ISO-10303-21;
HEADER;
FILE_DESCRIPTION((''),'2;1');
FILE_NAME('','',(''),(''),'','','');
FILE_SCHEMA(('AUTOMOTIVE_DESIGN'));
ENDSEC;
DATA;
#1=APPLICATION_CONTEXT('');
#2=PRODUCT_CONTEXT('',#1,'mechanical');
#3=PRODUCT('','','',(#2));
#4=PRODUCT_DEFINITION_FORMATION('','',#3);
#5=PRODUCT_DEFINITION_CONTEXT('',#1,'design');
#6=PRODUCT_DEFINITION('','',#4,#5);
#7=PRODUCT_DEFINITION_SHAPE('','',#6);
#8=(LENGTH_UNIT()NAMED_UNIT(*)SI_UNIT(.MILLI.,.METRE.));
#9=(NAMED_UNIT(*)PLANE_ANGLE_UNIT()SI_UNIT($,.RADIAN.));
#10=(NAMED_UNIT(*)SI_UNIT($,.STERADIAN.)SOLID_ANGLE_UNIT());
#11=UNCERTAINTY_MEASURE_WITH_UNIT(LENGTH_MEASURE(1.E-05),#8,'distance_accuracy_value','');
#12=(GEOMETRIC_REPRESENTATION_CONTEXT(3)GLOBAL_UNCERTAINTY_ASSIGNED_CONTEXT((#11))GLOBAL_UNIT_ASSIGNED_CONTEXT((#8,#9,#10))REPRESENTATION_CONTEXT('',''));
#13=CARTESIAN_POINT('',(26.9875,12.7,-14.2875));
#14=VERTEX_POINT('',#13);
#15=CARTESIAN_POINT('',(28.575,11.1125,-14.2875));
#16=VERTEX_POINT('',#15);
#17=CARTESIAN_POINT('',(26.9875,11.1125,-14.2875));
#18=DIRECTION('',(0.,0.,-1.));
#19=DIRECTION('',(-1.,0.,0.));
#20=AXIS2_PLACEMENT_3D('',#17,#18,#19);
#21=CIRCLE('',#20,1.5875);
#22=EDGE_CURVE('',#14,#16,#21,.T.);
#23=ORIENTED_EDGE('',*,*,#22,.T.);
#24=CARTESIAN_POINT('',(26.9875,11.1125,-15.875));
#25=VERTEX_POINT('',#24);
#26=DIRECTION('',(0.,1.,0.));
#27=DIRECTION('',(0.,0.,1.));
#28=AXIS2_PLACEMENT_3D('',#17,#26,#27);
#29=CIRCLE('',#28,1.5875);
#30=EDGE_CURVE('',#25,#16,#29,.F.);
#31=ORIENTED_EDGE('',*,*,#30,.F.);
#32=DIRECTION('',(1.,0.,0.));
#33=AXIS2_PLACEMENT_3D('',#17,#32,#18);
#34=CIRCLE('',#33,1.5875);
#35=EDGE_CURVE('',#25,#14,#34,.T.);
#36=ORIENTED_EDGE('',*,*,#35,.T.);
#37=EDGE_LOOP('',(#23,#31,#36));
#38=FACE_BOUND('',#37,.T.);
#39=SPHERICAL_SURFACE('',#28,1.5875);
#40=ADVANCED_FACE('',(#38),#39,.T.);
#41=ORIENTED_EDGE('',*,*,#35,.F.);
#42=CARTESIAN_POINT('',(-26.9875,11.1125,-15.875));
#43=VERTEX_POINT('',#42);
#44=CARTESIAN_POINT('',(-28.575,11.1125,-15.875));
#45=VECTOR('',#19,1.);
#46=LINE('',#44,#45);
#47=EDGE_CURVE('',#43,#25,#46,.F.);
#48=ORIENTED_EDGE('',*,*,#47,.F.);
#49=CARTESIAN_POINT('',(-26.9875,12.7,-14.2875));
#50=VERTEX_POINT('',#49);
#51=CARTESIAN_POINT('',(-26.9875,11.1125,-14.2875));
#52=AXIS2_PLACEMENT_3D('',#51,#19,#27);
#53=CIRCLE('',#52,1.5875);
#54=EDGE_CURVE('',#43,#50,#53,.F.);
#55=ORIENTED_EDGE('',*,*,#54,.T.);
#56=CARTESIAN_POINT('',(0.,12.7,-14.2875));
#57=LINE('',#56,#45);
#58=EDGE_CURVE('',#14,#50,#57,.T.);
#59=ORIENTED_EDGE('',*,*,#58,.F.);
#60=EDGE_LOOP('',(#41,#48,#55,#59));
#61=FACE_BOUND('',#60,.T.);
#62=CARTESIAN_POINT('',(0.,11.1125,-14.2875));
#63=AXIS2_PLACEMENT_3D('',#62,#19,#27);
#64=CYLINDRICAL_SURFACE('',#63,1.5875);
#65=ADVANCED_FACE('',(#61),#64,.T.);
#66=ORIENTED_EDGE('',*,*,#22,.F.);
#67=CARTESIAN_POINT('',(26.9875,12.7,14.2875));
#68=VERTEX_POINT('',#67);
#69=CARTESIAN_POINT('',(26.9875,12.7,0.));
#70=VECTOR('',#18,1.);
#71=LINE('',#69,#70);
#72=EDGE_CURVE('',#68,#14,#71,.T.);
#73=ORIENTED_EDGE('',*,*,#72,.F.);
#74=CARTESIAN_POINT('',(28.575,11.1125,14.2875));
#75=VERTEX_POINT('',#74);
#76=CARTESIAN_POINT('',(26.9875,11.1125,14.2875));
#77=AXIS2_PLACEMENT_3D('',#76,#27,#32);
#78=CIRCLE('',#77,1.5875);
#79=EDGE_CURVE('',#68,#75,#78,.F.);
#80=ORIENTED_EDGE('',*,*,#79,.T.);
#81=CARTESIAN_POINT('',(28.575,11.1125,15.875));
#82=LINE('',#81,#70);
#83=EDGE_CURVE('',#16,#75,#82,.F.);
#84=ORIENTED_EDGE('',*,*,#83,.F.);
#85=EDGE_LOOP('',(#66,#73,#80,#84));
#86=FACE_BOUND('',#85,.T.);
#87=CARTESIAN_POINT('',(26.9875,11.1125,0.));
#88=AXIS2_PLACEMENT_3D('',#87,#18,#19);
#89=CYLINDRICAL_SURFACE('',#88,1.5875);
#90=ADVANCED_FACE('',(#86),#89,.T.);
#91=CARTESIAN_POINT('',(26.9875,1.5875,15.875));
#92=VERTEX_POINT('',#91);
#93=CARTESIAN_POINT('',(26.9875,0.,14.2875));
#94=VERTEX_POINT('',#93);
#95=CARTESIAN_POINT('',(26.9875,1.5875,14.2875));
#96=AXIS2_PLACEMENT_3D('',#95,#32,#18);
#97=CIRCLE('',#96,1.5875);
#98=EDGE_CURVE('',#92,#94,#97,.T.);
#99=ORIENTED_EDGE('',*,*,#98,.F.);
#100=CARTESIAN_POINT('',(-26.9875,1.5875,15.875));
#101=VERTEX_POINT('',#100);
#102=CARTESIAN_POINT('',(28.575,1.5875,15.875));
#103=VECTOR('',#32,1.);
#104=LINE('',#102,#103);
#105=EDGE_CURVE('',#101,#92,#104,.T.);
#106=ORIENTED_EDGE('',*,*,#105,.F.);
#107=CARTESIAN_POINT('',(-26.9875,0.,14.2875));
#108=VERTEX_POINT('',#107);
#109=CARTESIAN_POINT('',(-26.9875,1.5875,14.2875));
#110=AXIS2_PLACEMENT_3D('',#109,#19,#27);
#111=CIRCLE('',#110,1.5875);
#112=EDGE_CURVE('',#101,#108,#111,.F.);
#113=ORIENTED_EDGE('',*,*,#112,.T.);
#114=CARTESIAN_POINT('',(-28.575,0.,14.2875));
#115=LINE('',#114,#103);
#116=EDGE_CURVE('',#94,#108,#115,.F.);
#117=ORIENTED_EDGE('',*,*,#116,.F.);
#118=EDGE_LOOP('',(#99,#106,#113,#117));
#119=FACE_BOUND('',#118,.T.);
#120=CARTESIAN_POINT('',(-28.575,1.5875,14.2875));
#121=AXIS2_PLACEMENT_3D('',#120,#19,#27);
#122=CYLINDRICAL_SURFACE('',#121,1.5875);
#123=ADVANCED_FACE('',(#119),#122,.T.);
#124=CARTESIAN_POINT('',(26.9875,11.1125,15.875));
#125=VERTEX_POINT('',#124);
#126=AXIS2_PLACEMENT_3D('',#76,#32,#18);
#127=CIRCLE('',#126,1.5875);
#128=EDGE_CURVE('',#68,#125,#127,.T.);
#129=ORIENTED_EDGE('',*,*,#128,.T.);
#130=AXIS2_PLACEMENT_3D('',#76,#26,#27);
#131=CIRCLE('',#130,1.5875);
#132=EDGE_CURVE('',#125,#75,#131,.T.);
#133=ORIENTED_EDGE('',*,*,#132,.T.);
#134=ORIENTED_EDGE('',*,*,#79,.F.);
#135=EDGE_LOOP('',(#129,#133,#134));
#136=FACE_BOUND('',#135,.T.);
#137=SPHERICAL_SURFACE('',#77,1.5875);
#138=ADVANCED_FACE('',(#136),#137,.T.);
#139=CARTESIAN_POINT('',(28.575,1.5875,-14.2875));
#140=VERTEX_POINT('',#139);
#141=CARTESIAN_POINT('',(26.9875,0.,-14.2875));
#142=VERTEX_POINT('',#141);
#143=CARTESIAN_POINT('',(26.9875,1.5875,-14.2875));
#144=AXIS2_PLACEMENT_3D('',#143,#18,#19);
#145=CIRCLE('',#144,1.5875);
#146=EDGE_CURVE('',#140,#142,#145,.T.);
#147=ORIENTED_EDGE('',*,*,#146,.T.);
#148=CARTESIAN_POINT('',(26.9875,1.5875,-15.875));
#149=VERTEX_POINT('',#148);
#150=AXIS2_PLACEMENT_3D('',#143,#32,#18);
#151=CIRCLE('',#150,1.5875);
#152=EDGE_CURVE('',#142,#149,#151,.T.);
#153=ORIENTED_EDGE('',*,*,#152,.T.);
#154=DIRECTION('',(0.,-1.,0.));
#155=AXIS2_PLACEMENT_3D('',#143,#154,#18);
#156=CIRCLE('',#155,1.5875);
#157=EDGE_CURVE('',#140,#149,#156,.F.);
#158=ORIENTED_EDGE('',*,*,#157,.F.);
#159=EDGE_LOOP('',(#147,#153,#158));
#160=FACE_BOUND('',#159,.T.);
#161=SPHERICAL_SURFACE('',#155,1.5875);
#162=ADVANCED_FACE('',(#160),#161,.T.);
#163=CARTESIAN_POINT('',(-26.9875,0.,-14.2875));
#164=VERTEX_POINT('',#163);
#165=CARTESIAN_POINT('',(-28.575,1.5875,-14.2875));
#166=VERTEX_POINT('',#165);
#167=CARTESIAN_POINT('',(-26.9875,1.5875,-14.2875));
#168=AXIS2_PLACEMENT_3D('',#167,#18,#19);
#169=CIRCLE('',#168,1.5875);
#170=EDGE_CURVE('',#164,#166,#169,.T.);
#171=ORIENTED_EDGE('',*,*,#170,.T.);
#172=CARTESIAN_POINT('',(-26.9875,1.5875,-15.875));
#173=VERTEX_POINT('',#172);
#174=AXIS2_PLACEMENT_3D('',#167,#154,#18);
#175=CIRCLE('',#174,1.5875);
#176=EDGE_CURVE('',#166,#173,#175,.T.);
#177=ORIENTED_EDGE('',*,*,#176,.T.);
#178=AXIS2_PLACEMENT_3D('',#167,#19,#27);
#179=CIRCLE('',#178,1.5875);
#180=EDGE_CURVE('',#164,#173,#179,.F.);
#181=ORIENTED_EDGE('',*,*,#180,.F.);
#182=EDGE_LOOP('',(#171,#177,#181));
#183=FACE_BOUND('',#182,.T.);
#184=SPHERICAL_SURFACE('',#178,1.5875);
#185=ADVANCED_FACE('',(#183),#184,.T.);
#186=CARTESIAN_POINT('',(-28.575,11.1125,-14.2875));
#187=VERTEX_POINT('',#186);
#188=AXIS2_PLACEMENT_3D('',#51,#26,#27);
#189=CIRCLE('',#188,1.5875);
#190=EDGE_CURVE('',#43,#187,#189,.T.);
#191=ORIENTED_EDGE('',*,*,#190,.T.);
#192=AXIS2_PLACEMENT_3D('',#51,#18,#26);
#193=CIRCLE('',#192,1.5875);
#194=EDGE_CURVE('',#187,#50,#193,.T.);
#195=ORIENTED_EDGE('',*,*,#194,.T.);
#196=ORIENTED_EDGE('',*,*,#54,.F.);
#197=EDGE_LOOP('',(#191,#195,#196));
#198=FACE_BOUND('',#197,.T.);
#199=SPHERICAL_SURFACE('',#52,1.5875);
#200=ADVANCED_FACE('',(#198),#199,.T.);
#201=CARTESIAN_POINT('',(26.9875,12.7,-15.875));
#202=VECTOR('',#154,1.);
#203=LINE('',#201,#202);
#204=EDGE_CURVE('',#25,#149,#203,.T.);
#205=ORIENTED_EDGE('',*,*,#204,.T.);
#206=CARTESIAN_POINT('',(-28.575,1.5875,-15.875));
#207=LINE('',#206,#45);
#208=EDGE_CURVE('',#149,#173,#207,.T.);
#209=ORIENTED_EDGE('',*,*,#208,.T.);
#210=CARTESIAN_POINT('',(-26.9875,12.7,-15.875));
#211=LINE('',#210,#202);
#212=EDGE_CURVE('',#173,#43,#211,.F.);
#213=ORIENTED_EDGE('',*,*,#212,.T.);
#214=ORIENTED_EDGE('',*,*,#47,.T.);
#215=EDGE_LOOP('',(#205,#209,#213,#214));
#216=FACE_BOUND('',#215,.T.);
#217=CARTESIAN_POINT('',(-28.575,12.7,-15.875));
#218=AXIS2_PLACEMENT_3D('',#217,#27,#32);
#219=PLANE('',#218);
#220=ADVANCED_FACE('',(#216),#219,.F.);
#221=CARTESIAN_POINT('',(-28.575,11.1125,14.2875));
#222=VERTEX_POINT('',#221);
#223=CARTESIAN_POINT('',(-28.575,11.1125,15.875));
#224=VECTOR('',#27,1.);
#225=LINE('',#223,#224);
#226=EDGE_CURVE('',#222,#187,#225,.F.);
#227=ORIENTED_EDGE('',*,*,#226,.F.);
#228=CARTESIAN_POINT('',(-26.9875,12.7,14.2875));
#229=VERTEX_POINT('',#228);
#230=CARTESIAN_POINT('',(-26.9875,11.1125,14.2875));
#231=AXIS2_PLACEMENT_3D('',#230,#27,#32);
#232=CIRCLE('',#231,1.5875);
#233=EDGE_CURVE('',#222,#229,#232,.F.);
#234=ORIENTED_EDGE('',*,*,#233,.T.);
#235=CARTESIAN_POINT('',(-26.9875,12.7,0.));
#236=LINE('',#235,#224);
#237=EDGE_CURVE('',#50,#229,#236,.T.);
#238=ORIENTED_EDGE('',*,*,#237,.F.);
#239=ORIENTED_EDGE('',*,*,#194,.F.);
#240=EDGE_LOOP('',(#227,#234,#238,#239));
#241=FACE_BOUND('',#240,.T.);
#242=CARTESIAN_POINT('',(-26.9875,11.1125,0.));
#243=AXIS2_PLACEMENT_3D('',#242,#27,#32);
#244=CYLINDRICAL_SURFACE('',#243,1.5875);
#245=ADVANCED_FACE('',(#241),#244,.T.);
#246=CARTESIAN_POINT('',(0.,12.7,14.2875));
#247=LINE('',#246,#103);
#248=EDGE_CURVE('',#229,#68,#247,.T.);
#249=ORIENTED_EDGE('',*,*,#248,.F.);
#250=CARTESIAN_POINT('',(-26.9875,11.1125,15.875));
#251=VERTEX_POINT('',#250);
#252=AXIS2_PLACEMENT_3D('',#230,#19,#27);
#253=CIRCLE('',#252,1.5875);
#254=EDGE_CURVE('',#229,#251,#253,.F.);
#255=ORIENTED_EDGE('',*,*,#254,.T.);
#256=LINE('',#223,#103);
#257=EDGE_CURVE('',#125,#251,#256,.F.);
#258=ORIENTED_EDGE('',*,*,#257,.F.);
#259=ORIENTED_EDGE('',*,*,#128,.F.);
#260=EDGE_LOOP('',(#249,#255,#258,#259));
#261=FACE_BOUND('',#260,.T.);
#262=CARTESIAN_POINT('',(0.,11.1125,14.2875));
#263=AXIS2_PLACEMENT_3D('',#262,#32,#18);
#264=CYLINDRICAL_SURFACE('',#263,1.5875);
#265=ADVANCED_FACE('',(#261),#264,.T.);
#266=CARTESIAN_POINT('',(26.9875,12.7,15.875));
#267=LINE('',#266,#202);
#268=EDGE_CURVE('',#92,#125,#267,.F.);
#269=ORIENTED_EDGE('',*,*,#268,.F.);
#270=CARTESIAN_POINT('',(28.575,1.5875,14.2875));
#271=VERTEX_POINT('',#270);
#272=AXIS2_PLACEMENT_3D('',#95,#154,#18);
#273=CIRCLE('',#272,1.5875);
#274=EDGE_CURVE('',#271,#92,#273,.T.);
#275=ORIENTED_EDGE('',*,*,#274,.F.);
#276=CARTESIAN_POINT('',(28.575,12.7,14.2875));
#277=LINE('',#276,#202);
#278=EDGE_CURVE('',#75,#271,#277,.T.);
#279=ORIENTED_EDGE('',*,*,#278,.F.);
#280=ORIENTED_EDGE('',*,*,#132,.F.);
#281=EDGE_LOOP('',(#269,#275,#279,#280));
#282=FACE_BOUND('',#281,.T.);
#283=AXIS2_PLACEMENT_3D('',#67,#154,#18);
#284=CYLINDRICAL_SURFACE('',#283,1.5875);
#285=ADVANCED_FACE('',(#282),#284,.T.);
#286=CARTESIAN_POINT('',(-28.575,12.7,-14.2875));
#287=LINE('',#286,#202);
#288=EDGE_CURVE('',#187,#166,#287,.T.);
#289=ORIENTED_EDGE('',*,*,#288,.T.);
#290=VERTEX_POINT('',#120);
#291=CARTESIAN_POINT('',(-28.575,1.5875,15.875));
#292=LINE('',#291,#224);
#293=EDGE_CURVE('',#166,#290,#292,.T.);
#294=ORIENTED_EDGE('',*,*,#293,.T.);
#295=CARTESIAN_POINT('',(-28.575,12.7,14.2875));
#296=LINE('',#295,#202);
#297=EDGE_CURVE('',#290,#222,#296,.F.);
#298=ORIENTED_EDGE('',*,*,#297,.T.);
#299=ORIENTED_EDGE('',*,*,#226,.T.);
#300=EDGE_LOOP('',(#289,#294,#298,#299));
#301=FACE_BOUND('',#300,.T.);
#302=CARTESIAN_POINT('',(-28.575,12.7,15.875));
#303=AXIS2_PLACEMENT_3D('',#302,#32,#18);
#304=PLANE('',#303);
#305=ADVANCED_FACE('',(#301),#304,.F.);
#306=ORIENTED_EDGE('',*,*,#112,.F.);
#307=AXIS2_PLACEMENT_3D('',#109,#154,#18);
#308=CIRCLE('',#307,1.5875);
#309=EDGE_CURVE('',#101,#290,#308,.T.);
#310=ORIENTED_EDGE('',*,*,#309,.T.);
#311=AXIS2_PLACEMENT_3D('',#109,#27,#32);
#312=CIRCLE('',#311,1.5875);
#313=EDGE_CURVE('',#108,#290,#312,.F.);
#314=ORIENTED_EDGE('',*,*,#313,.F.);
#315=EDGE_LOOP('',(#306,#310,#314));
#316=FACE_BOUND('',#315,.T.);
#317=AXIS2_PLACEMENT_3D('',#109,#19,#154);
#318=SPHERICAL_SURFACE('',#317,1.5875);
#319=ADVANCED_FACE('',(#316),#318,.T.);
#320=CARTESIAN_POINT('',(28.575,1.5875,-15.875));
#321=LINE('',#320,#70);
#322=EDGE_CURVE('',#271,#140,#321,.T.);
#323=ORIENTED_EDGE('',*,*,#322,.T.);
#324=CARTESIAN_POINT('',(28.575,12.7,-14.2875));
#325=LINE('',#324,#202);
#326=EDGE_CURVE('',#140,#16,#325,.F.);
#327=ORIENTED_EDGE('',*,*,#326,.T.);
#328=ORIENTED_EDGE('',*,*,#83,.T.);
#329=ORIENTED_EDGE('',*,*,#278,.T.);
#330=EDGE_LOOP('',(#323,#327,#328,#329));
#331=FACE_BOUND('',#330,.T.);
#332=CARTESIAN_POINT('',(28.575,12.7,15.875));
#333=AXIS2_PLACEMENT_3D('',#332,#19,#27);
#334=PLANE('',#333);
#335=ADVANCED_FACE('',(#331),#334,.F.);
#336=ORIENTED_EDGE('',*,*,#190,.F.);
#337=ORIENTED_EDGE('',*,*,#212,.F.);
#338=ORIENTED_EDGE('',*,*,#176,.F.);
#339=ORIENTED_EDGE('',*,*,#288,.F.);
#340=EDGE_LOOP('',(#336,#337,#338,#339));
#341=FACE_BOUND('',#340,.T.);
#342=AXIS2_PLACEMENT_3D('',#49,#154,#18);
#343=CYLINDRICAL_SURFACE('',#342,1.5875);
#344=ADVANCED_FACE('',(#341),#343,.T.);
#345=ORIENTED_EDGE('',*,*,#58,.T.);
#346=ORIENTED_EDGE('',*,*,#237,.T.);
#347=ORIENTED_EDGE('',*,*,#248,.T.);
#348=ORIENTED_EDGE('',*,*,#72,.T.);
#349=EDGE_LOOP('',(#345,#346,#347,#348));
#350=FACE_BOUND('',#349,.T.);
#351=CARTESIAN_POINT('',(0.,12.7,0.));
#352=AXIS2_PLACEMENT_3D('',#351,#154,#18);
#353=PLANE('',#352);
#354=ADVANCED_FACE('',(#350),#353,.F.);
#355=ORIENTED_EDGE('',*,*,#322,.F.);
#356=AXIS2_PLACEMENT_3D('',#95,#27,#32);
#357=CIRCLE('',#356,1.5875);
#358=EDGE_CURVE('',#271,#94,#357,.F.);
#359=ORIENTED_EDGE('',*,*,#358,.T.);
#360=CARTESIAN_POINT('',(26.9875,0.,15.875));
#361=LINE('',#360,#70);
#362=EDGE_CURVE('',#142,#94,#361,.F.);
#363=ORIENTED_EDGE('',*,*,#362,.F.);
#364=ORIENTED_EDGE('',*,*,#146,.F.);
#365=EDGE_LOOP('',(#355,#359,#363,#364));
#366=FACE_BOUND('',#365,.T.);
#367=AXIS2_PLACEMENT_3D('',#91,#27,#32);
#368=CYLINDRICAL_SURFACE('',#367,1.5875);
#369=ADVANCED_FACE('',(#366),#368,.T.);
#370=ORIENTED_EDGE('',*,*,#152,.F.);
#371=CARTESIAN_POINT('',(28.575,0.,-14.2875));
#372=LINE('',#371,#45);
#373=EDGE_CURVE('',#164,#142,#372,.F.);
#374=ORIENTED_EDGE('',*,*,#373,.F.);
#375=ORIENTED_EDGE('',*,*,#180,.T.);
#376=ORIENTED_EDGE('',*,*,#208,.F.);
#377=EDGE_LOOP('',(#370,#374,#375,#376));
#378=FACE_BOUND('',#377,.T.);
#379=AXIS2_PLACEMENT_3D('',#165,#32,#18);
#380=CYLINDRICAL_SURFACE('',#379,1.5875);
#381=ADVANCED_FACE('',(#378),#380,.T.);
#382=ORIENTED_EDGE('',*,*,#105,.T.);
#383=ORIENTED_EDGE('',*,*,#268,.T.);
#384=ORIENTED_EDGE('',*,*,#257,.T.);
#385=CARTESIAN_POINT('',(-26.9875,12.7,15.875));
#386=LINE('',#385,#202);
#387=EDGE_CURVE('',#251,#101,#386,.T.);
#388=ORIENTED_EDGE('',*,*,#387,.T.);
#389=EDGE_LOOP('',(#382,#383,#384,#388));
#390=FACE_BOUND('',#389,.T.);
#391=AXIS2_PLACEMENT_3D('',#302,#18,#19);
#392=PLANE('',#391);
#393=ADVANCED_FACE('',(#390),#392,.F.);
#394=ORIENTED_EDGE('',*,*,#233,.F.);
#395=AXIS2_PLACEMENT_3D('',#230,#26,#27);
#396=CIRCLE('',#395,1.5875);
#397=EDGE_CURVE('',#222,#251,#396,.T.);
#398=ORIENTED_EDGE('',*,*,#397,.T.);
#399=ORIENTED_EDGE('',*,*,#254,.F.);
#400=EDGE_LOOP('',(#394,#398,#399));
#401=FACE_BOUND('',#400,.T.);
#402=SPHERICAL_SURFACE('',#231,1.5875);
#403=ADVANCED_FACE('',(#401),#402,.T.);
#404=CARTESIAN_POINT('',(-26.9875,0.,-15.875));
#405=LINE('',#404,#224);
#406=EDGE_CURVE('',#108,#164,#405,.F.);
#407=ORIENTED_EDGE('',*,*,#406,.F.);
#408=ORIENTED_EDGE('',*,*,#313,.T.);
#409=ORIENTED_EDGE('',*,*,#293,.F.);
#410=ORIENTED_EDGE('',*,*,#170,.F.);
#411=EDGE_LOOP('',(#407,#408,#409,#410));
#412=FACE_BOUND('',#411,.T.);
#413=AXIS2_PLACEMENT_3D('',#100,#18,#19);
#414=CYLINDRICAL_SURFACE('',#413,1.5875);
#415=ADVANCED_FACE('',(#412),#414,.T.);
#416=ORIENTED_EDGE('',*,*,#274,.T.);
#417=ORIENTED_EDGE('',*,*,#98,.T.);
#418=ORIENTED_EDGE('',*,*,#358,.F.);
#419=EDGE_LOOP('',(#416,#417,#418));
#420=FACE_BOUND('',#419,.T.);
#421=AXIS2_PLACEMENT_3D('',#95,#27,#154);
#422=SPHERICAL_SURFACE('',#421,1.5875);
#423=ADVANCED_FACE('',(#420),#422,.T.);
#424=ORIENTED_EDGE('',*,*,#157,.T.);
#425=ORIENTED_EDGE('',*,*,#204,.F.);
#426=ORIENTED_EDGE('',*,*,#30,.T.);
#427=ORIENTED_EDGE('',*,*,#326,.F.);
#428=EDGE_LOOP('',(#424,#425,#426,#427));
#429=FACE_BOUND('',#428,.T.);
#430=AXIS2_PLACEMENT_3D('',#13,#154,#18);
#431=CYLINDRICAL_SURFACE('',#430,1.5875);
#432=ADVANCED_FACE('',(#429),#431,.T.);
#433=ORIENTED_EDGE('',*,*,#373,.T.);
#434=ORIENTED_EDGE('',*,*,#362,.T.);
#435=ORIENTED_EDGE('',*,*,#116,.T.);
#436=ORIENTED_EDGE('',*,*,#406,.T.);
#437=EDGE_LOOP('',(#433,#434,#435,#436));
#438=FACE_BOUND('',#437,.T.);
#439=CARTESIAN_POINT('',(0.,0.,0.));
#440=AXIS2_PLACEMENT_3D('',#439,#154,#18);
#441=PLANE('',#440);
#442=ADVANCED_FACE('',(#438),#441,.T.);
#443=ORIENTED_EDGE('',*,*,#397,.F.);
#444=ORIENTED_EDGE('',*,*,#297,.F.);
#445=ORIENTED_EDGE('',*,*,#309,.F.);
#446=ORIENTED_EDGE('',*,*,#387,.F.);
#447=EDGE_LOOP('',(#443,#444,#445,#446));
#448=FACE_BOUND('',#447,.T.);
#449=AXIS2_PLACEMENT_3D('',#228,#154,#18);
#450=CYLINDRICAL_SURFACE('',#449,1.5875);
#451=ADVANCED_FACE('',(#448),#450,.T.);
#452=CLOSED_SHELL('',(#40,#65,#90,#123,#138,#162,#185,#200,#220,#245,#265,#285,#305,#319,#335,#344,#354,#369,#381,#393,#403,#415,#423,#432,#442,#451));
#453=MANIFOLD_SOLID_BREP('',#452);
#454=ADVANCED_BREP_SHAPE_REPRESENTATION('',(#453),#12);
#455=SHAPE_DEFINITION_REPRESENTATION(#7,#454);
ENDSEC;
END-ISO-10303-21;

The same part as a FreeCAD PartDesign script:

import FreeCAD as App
import Part
import Sketcher
Q = App.Units.Quantity

doc = App.newDocument("Part")
params = doc.addObject("Spreadsheet::Sheet", "Params")
for row, (alias, value) in enumerate([
    ("sketch1_width", "2.25 in"),
    ("sketch1_height", "1.25 in"),
    ("pad1_length", "0.5 in"),
    ("fillet_radius", "0.0625 in"),
], start=1):
    params.set(f"A{row}", alias)
    params.set(f"B{row}", "=" + value)
    params.setAlias(f"B{row}", alias)

body = doc.addObject("PartDesign::Body", "Body")

# Sketch on XZ plane
sketch1 = body.newObject("Sketcher::SketchObject", "Sketch")
sketch1.AttachmentSupport = (doc.getObject("XZ_Plane"), [""])
sketch1.MapMode = "FlatFace"
sketch1.addGeometry([
    Part.LineSegment(App.Vector(-29, -16, 0), App.Vector(-29, 16, 0)),
    Part.LineSegment(App.Vector(-29, 16, 0), App.Vector(29, 16, 0)),
    Part.LineSegment(App.Vector(29, 16, 0), App.Vector(29, -16, 0)),
    Part.LineSegment(App.Vector(29, -16, 0), App.Vector(-29, -16, 0)),
], False)
sketch1.addConstraint([
    Sketcher.Constraint("Coincident", 0, 2, 1, 1),
    Sketcher.Constraint("Coincident", 1, 2, 2, 1),
    Sketcher.Constraint("Coincident", 2, 2, 3, 1),
    Sketcher.Constraint("Coincident", 3, 2, 0, 1),
    Sketcher.Constraint("Vertical", 0),
    Sketcher.Constraint("Horizontal", 1),
    Sketcher.Constraint("Vertical", 2),
    Sketcher.Constraint("Horizontal", 3),
    Sketcher.Constraint("Symmetric", 0, 2, 2, 2, -1, 1),
    Sketcher.Constraint("DistanceX", 1, 1, 1, 2, Q("2.25 in")),
    Sketcher.Constraint("DistanceY", 0, 1, 0, 2, Q("1.25 in")),
])
sketch1.setExpression("Constraints[9]", "Params.sketch1_width")
sketch1.setExpression("Constraints[10]", "Params.sketch1_height")
pad1 = body.newObject("PartDesign::Pad", "Pad")
pad1.Profile = sketch1
pad1.setExpression("Length", "Params.pad1_length")
pad1.Reversed = True
doc.recompute()

fillet = body.newObject("PartDesign::Fillet", "Fillet")
fillet.Base = (pad1, ["Edge1"])
fillet.UseAllEdges = True
fillet.setExpression("Radius", "Params.fillet_radius")

doc.recompute()
